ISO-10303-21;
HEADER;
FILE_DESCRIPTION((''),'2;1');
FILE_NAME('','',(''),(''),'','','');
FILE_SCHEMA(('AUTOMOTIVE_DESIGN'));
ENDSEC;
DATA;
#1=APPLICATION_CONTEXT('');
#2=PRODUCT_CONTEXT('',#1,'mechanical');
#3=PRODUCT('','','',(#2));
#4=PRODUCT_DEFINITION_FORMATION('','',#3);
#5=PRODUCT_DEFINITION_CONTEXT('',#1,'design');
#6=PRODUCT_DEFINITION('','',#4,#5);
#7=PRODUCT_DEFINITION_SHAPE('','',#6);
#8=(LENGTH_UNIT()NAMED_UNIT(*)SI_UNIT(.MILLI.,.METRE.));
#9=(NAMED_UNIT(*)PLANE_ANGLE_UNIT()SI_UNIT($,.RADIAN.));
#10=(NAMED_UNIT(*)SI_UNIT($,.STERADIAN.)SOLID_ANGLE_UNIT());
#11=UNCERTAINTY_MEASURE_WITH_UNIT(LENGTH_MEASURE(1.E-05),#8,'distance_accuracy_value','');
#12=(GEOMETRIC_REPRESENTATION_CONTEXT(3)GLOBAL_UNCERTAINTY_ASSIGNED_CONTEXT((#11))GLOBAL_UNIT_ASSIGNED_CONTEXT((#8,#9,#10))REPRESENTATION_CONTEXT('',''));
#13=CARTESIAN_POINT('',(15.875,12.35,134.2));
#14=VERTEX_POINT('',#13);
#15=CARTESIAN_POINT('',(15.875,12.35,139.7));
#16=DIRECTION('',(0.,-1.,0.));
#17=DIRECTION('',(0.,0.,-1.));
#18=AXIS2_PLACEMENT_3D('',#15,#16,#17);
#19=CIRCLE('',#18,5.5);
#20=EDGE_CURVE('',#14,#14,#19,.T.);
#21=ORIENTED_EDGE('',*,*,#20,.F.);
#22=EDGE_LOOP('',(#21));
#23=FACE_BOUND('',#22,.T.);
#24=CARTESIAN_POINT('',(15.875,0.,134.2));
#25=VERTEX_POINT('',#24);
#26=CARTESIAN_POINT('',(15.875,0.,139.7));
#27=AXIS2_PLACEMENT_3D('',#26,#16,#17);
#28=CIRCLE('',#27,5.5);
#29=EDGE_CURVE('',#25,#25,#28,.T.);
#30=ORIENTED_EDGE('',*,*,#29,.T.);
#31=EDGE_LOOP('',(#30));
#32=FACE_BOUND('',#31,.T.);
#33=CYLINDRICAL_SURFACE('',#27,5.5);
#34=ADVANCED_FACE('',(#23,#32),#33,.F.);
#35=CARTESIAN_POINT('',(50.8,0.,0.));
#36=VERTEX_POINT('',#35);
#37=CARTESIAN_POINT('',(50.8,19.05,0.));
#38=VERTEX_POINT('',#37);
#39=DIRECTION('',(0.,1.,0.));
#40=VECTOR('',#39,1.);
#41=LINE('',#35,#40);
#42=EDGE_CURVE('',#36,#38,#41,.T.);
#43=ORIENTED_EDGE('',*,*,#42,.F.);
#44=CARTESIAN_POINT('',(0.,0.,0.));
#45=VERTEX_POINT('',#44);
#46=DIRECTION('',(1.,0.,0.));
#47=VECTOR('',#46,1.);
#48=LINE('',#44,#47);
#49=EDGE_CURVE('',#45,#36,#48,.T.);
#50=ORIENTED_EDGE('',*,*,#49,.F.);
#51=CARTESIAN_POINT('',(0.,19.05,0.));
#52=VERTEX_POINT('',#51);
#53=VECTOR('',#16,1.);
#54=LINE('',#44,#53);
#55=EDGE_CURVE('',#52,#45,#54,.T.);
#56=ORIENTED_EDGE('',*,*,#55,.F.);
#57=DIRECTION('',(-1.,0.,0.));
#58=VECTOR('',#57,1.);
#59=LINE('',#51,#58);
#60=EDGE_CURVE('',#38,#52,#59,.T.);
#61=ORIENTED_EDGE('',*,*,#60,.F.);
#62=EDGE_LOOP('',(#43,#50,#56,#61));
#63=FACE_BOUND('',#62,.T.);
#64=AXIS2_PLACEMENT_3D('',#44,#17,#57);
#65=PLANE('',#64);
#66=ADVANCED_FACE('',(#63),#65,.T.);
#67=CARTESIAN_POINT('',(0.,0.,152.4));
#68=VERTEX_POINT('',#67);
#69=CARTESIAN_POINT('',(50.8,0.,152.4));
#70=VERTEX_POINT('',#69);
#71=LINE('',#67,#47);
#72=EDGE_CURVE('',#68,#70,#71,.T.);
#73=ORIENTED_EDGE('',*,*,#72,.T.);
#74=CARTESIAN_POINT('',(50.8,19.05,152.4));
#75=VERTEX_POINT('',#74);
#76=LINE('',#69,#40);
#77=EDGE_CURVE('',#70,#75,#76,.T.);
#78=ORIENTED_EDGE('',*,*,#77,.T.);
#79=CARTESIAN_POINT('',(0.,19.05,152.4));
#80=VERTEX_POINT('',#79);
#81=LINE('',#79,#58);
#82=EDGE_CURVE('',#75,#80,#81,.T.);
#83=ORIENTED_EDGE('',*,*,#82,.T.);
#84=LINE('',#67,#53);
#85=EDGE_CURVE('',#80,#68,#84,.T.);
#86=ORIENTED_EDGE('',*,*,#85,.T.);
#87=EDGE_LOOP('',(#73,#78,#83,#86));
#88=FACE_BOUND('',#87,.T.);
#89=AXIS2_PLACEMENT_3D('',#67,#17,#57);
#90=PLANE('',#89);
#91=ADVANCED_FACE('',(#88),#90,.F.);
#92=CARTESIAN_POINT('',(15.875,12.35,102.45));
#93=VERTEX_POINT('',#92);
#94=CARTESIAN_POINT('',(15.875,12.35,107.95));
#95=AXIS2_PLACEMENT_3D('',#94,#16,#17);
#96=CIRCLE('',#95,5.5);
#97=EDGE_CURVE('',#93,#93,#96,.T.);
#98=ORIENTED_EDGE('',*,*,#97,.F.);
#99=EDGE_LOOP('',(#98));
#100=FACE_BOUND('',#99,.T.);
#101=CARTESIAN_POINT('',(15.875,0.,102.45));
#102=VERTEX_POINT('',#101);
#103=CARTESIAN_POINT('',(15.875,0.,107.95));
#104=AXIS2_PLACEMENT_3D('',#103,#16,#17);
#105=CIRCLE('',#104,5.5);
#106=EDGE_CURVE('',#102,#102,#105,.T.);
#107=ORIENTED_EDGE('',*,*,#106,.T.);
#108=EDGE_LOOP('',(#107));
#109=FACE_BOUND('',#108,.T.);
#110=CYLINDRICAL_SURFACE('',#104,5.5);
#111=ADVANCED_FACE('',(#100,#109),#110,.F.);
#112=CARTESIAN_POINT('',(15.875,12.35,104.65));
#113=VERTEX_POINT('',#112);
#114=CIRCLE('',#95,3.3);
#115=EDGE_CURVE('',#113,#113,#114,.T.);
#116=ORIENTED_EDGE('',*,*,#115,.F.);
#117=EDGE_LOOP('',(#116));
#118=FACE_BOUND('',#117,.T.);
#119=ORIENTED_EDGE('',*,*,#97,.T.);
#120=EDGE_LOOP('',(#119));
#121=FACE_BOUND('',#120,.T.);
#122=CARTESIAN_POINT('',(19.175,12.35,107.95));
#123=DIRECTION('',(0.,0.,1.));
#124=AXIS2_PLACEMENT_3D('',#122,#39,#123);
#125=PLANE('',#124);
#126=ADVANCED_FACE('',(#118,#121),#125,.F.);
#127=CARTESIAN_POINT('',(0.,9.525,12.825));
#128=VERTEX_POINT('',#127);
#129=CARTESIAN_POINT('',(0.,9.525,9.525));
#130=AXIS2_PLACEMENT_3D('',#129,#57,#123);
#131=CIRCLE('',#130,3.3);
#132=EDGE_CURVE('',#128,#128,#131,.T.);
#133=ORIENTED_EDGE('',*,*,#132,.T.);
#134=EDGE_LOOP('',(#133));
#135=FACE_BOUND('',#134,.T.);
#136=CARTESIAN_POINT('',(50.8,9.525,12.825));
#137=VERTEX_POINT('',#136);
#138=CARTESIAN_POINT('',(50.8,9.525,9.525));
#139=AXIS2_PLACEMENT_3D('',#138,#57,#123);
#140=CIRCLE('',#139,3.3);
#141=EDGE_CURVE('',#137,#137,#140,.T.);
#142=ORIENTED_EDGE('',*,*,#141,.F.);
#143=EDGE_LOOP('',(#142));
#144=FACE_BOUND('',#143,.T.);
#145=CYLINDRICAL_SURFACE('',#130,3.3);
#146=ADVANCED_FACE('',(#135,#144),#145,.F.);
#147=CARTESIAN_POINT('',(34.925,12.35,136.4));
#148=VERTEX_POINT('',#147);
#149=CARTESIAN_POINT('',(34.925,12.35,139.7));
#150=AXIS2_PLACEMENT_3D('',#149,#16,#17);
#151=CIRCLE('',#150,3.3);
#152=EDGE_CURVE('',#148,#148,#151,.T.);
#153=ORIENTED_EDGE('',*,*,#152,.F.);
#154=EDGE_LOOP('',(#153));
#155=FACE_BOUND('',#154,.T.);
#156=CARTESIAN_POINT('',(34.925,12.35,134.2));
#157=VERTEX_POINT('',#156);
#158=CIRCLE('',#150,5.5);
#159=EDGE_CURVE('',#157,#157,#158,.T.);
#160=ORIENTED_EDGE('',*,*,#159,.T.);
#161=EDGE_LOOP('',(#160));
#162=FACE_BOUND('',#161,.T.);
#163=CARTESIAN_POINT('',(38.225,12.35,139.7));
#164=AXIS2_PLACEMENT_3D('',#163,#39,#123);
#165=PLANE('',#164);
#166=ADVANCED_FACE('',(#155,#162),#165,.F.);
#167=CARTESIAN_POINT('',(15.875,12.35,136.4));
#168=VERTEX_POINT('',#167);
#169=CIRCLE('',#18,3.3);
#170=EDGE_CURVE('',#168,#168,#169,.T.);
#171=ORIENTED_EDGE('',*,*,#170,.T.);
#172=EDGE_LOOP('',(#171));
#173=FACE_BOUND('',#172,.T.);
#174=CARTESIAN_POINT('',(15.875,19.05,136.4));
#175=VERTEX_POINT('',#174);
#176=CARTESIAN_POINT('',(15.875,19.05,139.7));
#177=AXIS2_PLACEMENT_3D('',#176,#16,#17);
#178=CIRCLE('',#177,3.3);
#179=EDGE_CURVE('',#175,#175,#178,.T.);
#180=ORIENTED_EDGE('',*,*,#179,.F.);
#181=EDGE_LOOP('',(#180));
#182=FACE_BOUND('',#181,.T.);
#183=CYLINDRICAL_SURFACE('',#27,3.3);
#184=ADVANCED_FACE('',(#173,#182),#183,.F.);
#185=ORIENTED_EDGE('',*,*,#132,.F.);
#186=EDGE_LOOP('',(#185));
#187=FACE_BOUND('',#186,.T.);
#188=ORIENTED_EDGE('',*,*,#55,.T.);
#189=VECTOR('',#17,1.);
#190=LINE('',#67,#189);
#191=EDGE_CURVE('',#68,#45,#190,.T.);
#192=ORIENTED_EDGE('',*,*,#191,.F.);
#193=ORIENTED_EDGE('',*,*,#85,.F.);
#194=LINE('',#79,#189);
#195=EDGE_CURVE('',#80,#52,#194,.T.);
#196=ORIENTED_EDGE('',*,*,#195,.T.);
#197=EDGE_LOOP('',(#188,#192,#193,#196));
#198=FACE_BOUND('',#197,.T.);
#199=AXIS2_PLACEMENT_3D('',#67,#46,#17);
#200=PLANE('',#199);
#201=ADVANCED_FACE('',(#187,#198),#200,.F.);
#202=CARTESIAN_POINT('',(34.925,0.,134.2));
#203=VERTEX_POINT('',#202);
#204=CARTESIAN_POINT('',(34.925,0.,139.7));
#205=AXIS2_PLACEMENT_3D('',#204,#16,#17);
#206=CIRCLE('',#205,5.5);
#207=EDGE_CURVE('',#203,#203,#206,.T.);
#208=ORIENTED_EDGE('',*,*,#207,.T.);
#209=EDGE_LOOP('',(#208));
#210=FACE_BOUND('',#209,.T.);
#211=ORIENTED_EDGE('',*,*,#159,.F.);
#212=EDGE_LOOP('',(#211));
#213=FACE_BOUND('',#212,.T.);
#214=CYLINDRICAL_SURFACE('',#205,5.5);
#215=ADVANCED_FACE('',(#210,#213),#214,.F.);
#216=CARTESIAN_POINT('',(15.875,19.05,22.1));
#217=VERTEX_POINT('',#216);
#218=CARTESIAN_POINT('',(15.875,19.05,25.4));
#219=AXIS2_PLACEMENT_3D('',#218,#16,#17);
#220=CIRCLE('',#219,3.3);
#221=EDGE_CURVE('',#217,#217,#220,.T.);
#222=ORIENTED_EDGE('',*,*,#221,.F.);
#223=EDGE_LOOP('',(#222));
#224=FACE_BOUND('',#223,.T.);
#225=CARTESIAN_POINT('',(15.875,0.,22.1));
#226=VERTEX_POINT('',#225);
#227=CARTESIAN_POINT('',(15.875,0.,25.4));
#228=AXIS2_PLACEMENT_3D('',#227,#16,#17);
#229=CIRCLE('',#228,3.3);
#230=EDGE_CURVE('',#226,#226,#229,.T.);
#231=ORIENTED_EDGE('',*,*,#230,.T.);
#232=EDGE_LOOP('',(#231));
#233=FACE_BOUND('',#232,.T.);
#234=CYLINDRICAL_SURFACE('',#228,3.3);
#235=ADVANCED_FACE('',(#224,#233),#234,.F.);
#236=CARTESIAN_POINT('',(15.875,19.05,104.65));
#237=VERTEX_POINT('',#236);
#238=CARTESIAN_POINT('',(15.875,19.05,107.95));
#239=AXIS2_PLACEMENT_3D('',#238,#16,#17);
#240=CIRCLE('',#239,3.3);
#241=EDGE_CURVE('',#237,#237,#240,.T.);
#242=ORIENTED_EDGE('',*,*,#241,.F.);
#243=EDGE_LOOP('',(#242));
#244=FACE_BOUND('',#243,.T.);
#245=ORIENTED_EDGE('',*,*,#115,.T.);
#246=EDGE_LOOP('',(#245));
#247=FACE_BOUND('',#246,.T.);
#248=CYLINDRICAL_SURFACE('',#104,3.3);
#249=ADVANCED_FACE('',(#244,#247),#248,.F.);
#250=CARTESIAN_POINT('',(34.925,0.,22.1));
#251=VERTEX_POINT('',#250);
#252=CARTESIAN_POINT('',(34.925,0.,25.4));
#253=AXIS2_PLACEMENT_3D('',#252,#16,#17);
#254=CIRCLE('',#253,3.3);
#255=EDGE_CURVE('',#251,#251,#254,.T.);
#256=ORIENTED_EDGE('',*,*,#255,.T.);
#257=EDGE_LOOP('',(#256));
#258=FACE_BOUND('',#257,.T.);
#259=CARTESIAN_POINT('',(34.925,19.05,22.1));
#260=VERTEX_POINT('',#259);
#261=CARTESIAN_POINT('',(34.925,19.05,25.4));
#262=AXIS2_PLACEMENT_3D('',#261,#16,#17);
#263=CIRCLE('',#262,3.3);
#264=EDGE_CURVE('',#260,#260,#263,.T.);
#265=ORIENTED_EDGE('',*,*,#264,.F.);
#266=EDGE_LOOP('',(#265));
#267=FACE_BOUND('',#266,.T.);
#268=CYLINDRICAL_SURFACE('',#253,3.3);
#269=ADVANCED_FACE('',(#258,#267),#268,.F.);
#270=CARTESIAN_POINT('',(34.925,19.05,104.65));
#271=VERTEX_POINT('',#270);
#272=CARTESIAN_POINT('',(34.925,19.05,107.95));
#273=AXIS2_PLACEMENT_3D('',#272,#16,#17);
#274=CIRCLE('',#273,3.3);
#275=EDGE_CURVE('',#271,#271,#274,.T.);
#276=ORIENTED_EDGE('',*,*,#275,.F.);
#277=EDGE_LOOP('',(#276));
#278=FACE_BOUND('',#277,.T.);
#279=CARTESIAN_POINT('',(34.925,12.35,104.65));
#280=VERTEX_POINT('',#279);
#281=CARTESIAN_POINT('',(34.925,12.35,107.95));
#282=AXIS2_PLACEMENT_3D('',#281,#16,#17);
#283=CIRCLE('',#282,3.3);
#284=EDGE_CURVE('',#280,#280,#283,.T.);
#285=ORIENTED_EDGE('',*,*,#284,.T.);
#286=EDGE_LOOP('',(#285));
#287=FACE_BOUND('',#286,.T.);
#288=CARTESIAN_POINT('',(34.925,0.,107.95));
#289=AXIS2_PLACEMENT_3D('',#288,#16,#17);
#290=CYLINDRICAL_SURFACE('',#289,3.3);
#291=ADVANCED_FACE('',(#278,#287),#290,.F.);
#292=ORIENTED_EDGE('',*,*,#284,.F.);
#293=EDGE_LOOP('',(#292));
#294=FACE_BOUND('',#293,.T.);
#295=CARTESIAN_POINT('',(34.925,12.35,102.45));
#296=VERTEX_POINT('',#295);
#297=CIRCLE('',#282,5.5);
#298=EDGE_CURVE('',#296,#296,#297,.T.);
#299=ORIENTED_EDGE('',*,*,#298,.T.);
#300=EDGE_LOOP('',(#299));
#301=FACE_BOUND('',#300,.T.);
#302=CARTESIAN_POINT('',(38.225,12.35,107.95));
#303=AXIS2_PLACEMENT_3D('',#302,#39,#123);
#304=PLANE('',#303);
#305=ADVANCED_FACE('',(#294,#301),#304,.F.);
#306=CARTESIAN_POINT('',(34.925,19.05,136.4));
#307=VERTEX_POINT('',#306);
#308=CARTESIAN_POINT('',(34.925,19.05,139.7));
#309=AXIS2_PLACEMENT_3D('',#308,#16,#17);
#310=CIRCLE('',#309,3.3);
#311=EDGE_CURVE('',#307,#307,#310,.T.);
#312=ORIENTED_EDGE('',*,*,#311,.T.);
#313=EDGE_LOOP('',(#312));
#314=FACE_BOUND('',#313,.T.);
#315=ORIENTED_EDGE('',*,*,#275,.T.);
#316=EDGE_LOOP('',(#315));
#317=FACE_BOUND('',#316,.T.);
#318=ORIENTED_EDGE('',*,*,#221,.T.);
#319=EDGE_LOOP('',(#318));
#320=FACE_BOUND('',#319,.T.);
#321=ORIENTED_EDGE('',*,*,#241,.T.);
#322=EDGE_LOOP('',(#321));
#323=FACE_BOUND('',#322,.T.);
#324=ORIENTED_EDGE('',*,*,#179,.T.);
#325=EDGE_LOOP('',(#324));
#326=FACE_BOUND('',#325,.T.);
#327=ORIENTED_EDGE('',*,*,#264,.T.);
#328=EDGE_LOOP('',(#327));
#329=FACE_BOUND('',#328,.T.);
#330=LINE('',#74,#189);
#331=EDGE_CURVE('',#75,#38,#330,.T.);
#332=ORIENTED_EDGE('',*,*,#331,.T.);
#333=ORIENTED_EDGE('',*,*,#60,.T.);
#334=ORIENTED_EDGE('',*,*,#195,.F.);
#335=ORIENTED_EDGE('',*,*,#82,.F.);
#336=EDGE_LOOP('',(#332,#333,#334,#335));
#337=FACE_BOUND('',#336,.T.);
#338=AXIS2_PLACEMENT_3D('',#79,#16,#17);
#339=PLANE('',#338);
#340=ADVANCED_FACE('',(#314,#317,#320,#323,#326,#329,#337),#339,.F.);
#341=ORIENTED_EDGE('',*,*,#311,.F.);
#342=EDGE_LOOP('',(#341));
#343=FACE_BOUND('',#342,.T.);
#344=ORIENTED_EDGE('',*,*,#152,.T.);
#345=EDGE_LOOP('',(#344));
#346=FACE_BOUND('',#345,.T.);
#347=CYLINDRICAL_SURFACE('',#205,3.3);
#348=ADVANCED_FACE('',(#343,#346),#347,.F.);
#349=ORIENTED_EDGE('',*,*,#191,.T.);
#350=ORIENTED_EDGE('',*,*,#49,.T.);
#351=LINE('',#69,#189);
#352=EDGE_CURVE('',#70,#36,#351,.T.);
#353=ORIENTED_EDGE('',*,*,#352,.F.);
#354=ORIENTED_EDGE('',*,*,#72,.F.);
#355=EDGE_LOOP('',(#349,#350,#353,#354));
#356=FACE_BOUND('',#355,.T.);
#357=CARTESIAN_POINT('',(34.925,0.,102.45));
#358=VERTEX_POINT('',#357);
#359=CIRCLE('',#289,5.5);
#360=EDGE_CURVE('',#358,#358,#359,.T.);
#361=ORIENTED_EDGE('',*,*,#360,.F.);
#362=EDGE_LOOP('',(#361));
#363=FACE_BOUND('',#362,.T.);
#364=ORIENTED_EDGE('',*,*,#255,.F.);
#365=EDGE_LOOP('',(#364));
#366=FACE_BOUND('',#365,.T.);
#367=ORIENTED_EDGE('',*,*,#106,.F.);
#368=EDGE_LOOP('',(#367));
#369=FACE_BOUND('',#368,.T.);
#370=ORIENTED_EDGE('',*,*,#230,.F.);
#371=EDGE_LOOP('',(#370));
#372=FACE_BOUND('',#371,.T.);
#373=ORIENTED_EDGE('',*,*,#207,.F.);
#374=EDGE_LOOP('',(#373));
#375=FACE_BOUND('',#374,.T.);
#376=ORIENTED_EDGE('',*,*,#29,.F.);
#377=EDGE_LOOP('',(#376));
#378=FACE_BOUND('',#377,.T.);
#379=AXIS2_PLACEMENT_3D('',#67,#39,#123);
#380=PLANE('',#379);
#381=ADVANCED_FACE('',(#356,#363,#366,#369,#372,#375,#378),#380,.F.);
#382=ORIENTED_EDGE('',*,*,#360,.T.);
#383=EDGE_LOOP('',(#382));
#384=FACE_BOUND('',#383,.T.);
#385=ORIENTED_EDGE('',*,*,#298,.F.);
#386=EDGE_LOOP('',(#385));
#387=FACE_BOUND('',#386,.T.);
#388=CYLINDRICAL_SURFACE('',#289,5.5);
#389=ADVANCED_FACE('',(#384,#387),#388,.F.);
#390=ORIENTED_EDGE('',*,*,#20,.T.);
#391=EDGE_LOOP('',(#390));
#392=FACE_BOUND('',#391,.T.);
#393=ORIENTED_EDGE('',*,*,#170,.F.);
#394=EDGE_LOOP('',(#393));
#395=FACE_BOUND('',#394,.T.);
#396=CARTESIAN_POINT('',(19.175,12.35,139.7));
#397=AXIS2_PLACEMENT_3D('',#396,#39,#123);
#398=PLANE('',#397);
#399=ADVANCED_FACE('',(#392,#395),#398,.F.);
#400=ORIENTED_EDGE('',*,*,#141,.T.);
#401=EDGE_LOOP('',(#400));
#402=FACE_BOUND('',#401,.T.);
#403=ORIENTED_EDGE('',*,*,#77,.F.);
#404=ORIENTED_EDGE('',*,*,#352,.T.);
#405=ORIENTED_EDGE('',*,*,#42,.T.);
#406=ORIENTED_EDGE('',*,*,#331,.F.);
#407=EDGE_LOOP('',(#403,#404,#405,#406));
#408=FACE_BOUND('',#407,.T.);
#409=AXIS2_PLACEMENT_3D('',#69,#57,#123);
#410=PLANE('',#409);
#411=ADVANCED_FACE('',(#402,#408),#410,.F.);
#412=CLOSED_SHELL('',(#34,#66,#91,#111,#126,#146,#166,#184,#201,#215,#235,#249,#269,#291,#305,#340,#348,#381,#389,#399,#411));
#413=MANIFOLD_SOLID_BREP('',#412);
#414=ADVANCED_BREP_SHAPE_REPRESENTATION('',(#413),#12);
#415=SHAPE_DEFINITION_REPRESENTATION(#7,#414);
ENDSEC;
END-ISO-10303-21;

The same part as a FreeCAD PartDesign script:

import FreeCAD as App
import Part
import Sketcher
from FreeCAD import Vector
Q = App.Units.Quantity

doc = App.newDocument("Part")
params = doc.addObject("Spreadsheet::Sheet", "Params")
for row, (alias, value) in enumerate([
    ("sketch1_width", "2 in"),
    ("sketch1_height", "0.75 in"),
    ("pad1_length", "6 in"),
    ("hole_diameter", "6.6 mm"),
    ("hole_cbore_diameter", "11 mm"),
    ("hole_cbore_depth", "12.35 mm"),
    ("hole2_diameter", "6.6 mm"),
    ("hole3_diameter", "6.6 mm"),
], start=1):
    params.set(f"A{row}", alias)
    params.set(f"B{row}", "=" + value)
    params.setAlias(f"B{row}", alias)

body = doc.addObject("PartDesign::Body", "Body")

# Sketch on XY plane
sketch1 = body.newObject("Sketcher::SketchObject", "Sketch")
sketch1.AttachmentSupport = (doc.getObject("XY_Plane"), [""])
sketch1.MapMode = "FlatFace"
sketch1.addGeometry(Part.LineSegment(Vector(0, 19.05, 0), Vector(0, 0, 0)), False)
sketch1.addGeometry(Part.LineSegment(Vector(0, 0, 0), Vector(50.8, 0, 0)), False)
sketch1.addGeometry(Part.LineSegment(Vector(50.8, 0, 0), Vector(50.8, 19.05, 0)), False)
sketch1.addGeometry(Part.LineSegment(Vector(50.8, 19.05, 0), Vector(0, 19.05, 0)), False)
sketch1.addConstraint(Sketcher.Constraint("Coincident", 0, 2, 1, 1))
sketch1.addConstraint(Sketcher.Constraint("Coincident", 1, 2, 2, 1))
sketch1.addConstraint(Sketcher.Constraint("Coincident", 2, 2, 3, 1))
sketch1.addConstraint(Sketcher.Constraint("Coincident", 3, 2, 0, 1))
sketch1.addConstraint(Sketcher.Constraint("Vertical", 0))
sketch1.addConstraint(Sketcher.Constraint("Horizontal", 1))
sketch1.addConstraint(Sketcher.Constraint("Vertical", 2))
sketch1.addConstraint(Sketcher.Constraint("Horizontal", 3))
sketch1.addConstraint(Sketcher.Constraint("Coincident", 0, 2, -1, 1))
sketch1.addConstraint(Sketcher.Constraint("DistanceX", 1, 1, 1, 2, Q("2 in")))
sketch1.addConstraint(Sketcher.Constraint("DistanceY", 0, 2, 0, 1, Q("0.75 in")))
sketch1.setExpression("Constraints[9]", "Params.sketch1_width")
sketch1.setExpression("Constraints[10]", "Params.sketch1_height")
pad1 = body.newObject("PartDesign::Pad", "Pad")
pad1.Profile = sketch1
pad1.setExpression("Length", "Params.pad1_length")

# Sketch on XZ plane
sketch2 = body.newObject("Sketcher::SketchObject", "Sketch001")
sketch2.AttachmentSupport = (doc.getObject("XZ_Plane"), [""])
sketch2.MapMode = "FlatFace"
sketch2.addGeometry(Part.Circle(Vector(34.925, 139.7, 0), Vector(0, 0, 1), 3.3), False)
sketch2.addGeometry(Part.Circle(Vector(34.925, 107.95, 0), Vector(0, 0, 1), 3.3), False)
sketch2.addGeometry(Part.Circle(Vector(15.875, 107.95, 0), Vector(0, 0, 1), 3.3), False)
sketch2.addGeometry(Part.Circle(Vector(15.875, 139.7, 0), Vector(0, 0, 1), 3.3), False)
sketch2.addConstraint(Sketcher.Constraint("Equal", 0, 1))
sketch2.addConstraint(Sketcher.Constraint("Equal", 1, 2))
sketch2.addConstraint(Sketcher.Constraint("Equal", 2, 3))
sketch2.addConstraint(Sketcher.Constraint("Horizontal", 1, 3, 2, 3))
sketch2.addConstraint(Sketcher.Constraint("Horizontal", 0, 3, 3, 3))
sketch2.addConstraint(Sketcher.Constraint("Vertical", 0, 3, 1, 3))
sketch2.addConstraint(Sketcher.Constraint("Vertical", 2, 3, 3, 3))
sketch2.addConstraint(Sketcher.Constraint("DistanceY", -1, 1, 0, 3, Q("5.5 in")))
sketch2.addConstraint(Sketcher.Constraint("Diameter", 0, Q("6.6 mm")))
sketch2.addConstraint(Sketcher.Constraint("DistanceY", -1, 1, 1, 3, Q("4.25 in")))
sketch2.addConstraint(Sketcher.Constraint("DistanceX", 2, 3, 1, 3, Q("0.75 in")))
sketch2.addConstraint(Sketcher.Constraint("DistanceX", -1, 1, 0, 3, Q("1.375 in")))
doc.recompute()
hole = body.newObject("PartDesign::Hole", "Hole")
hole.Profile = sketch2
hole.ThreadType = "None"
hole.setExpression("Diameter", "Params.hole_diameter")
hole.DepthType = "ThroughAll"
hole.HoleCutType = "Counterbore"
hole.setExpression("HoleCutDiameter", "Params.hole_cbore_diameter")
hole.setExpression("HoleCutDepth", "Params.hole_cbore_depth")

# Sketch on YZ plane
sketch3 = body.newObject("Sketcher::SketchObject", "Sketch002")
sketch3.AttachmentSupport = (doc.getObject("YZ_Plane"), [""])
sketch3.MapMode = "FlatFace"
sketch3.addGeometry(Part.Circle(Vector(9.525, 9.525, 0), Vector(0, 0, 1), 3.3), False)
sketch3.addConstraint(Sketcher.Constraint("Diameter", 0, Q("6.6 mm")))
sketch3.addConstraint(Sketcher.Constraint("DistanceX", -1, 1, 0, 3, Q("0.375 in")))
sketch3.addConstraint(Sketcher.Constraint("DistanceY", -1, 1, 0, 3, Q("0.375 in")))
doc.recompute()
hole2 = body.newObject("PartDesign::Hole", "Hole001")
hole2.Profile = sketch3
hole2.ThreadType = "None"
hole2.setExpression("Diameter", "Params.hole2_diameter")
hole2.DepthType = "ThroughAll"
hole2.Reversed = True

# Sketch on XZ plane
sketch4 = body.newObject("Sketcher::SketchObject", "Sketch003")
sketch4.AttachmentSupport = (doc.getObject("XZ_Plane"), [""])
sketch4.MapMode = "FlatFace"
sketch4.addGeometry(Part.Circle(Vector(34.925, 25.4, 0), Vector(0, 0, 1), 3.3), False)
sketch4.addGeometry(Part.Circle(Vector(15.875, 25.4, 0), Vector(0, 0, 1), 3.3), False)
sketch4.addConstraint(Sketcher.Constraint("Equal", 0, 1))
sketch4.addConstraint(Sketcher.Constraint("Horizontal", 0, 3, 1, 3))
sketch4.addConstraint(Sketcher.Constraint("DistanceY", -1, 1, 0, 3, Q("1 in")))
sketch4.addConstraint(Sketcher.Constraint("Diameter", 0, Q("6.6 mm")))
sketch4.addConstraint(Sketcher.Constraint("DistanceX", 1, 3, 0, 3, Q("0.75 in")))
sketch4.addConstraint(Sketcher.Constraint("DistanceX", -1, 1, 0, 3, Q("1.375 in")))
doc.recompute()
hole3 = body.newObject("PartDesign::Hole", "Hole002")
hole3.Profile = sketch4
hole3.ThreadType = "None"
hole3.setExpression("Diameter", "Params.hole3_diameter")
hole3.DepthType = "ThroughAll"

doc.recompute()
